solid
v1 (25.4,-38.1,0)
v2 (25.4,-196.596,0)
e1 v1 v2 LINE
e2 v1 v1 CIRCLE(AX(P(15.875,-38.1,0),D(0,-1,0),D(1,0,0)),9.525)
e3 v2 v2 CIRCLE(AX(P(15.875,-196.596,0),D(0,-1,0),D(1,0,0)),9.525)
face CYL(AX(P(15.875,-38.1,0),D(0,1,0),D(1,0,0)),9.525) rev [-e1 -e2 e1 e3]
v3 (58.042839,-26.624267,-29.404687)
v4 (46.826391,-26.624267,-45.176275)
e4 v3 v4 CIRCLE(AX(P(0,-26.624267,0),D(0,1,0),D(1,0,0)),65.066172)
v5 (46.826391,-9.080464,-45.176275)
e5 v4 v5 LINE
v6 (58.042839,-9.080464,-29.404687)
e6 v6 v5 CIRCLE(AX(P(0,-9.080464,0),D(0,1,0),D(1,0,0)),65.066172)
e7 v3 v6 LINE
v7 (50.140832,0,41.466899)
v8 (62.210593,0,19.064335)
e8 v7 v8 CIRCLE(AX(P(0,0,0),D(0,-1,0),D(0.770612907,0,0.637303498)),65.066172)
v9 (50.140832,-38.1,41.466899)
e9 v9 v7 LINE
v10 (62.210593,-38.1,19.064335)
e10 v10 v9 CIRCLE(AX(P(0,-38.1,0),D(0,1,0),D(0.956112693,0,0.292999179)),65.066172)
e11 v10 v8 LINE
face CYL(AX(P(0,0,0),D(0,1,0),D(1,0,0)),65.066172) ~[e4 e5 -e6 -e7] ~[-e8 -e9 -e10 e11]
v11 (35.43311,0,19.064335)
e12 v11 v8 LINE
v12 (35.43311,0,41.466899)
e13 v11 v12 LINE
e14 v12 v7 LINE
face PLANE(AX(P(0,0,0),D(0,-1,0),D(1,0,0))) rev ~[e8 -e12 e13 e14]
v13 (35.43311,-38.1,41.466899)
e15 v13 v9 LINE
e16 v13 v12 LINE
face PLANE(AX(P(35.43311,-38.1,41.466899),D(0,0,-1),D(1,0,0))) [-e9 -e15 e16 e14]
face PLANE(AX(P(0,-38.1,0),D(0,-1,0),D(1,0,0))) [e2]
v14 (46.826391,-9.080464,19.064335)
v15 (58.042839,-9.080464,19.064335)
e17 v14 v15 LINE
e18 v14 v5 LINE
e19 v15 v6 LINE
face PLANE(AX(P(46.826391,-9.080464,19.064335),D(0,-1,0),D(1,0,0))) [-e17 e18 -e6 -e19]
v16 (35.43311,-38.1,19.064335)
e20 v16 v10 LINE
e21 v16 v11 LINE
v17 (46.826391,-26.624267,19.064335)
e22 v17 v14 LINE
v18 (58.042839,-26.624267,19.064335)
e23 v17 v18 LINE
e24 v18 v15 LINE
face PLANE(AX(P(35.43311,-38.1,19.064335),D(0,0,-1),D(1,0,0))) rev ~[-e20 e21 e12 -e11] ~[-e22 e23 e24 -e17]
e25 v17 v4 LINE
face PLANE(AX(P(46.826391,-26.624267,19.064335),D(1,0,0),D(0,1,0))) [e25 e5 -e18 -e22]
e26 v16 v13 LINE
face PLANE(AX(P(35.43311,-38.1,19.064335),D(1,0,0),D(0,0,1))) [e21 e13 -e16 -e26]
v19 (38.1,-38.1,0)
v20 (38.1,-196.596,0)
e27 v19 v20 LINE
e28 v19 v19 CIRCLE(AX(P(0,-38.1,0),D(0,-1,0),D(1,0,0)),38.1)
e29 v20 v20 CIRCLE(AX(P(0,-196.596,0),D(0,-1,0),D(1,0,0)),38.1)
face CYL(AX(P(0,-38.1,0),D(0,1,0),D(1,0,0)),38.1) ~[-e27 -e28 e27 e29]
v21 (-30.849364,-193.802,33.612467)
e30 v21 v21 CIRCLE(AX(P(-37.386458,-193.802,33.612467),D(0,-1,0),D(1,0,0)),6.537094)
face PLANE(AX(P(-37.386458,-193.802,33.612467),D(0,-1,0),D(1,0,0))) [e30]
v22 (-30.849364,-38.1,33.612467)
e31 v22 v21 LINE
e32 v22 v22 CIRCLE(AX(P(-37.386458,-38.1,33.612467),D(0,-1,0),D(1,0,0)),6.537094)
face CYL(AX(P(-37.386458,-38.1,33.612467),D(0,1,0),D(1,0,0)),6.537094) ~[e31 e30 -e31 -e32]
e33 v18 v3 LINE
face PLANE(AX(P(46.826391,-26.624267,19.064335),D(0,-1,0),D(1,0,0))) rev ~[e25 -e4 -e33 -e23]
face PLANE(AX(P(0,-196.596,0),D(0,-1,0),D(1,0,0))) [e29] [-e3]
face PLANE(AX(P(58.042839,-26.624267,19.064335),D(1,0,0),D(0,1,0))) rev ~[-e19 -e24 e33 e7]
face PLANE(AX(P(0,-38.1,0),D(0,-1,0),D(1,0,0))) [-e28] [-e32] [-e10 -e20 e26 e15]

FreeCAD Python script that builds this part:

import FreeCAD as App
import Part
import Sketcher
from FreeCAD import Vector
Q = App.Units.Quantity


def add_polygon(sketch, points):
    """Adds a closed chain of lines whose ends are joined by coincident constraints."""
    first, n = sketch.GeometryCount, len(points)
    for a, b in zip(points, points[1:] + points[:1]):
        sketch.addGeometry(Part.LineSegment(App.Vector(*a, 0), App.Vector(*b, 0)), False)
    for i in range(n):
        sketch.addConstraint(Sketcher.Constraint("Coincident", first + i, 2, first + (i + 1) % n, 1))

doc = App.newDocument("Part")
body = doc.addObject("PartDesign::Body", "Body")

# Sketch on XZ plane
sketch1 = body.newObject("Sketcher::SketchObject", "Sketch")
sketch1.AttachmentSupport = (doc.getObject("XZ_Plane"), [""])
sketch1.MapMode = "FlatFace"
sketch1.addGeometry(Part.Circle(Vector(0, 0, 0), Vector(0, 0, 1), 65), False)
sketch1.addConstraint(Sketcher.Constraint("Coincident", 0, 3, -1, 1))
sketch1.addConstraint(Sketcher.Constraint("Diameter", 0, 130.132344))
pad1 = body.newObject("PartDesign::Pad", "Pad")
pad1.Profile = sketch1
pad1.Length = Q("1.5 in")

# Sketch on XZ plane
sketch2 = body.newObject("Sketcher::SketchObject", "Sketch001")
sketch2.AttachmentSupport = (doc.getObject("XZ_Plane"), [""])
sketch2.MapMode = "FlatFace"
sketch2.AttachmentOffset = App.Placement(Vector(0, 0, 1.5 * 25.4), App.Rotation())
sketch2.addGeometry(Part.Circle(Vector(0, 0, 0), Vector(0, 0, 1), 38), False)
sketch2.addGeometry(Part.Circle(Vector(16, 0, 0), Vector(0, 0, 1), 10), False)
sketch2.addConstraint(Sketcher.Constraint("Coincident", 0, 3, -1, 1))
sketch2.addConstraint(Sketcher.Constraint("PointOnObject", 1, 3, -1))
sketch2.addConstraint(Sketcher.Constraint("Diameter", 0, Q("3 in")))
sketch2.addConstraint(Sketcher.Constraint("Diameter", 1, Q("0.75 in")))
sketch2.addConstraint(Sketcher.Constraint("DistanceX", -1, 1, 1, 3, Q("0.625 in")))
pad2 = body.newObject("PartDesign::Pad", "Pad001")
pad2.Profile = sketch2
pad2.Length = Q("6.24 in")

# Sketch on XZ plane
sketch3 = body.newObject("Sketcher::SketchObject", "Sketch002")
sketch3.AttachmentSupport = (doc.getObject("XZ_Plane"), [""])
sketch3.MapMode = "FlatFace"
sketch3.AttachmentOffset = App.Placement(Vector(0, 0, 1.5 * 25.4), App.Rotation())
sketch3.addGeometry(Part.Circle(Vector(-37, 34, 0), Vector(0, 0, 1), 7), False)
sketch3.addConstraint(Sketcher.Constraint("Diameter", 0, 13.074188))
sketch3.addConstraint(Sketcher.Constraint("DistanceX", 0, 3, -1, 1, 37.386458))
sketch3.addConstraint(Sketcher.Constraint("DistanceY", -1, 1, 0, 3, 33.612467))
pad3 = body.newObject("PartDesign::Pad", "Pad002")
pad3.Profile = sketch3
pad3.Length = Q("6.13 in")

# Sketch on XZ plane
sketch4 = body.newObject("Sketcher::SketchObject", "Sketch003")
sketch4.AttachmentSupport = (doc.getObject("XZ_Plane"), [""])
sketch4.MapMode = "FlatFace"
sketch4.AttachmentOffset = App.Placement(Vector(0, 0, 1.5 * 25.4), App.Rotation())
add_polygon(sketch4, [(35, 41), (35, 19), (136, 19), (136, 41)])  # lines 0-3
sketch4.addConstraint(Sketcher.Constraint("Vertical", 0))
sketch4.addConstraint(Sketcher.Constraint("Horizontal", 1))
sketch4.addConstraint(Sketcher.Constraint("Vertical", 2))
sketch4.addConstraint(Sketcher.Constraint("Horizontal", 3))
sketch4.addConstraint(Sketcher.Constraint("DistanceX", 1, 1, 1, 2, 100.18133))
sketch4.addConstraint(Sketcher.Constraint("DistanceY", -1, 1, 2, 2, 41.466899))
sketch4.addConstraint(Sketcher.Constraint("DistanceY", 0, 2, 0, 1, 22.402564))
sketch4.addConstraint(Sketcher.Constraint("DistanceX", -1, 1, 0, 2, 35.43311))
pocket1 = body.newObject("PartDesign::Pocket", "Pocket")
pocket1.Profile = sketch4
pocket1.Type = "ThroughAll"

# Sketch on XY plane
sketch5 = body.newObject("Sketcher::SketchObject", "Sketch004")
sketch5.AttachmentSupport = (doc.getObject("XY_Plane"), [""])
sketch5.MapMode = "FlatFace"
sketch5.AttachmentOffset = App.Placement(Vector(0, 0, 19.064335), App.Rotation())
add_polygon(sketch5, [(47, -9), (47, -27), (58, -27), (58, -9)])  # lines 0-3
sketch5.addConstraint(Sketcher.Constraint("Vertical", 0))
sketch5.addConstraint(Sketcher.Constraint("Horizontal", 1))
sketch5.addConstraint(Sketcher.Constraint("Vertical", 2))
sketch5.addConstraint(Sketcher.Constraint("Horizontal", 3))
sketch5.addConstraint(Sketcher.Constraint("DistanceX", 1, 1, 1, 2, 11.216447))
sketch5.addConstraint(Sketcher.Constraint("DistanceY", 0, 2, 0, 1, 17.543803))
sketch5.addConstraint(Sketcher.Constraint("DistanceX", -1, 1, 0, 2, 46.826391))
sketch5.addConstraint(Sketcher.Constraint("DistanceY", 0, 2, -1, 1, 26.624267))
pocket2 = body.newObject("PartDesign::Pocket", "Pocket001")
pocket2.Profile = sketch5
pocket2.Type = "ThroughAll"

doc.recompute()
